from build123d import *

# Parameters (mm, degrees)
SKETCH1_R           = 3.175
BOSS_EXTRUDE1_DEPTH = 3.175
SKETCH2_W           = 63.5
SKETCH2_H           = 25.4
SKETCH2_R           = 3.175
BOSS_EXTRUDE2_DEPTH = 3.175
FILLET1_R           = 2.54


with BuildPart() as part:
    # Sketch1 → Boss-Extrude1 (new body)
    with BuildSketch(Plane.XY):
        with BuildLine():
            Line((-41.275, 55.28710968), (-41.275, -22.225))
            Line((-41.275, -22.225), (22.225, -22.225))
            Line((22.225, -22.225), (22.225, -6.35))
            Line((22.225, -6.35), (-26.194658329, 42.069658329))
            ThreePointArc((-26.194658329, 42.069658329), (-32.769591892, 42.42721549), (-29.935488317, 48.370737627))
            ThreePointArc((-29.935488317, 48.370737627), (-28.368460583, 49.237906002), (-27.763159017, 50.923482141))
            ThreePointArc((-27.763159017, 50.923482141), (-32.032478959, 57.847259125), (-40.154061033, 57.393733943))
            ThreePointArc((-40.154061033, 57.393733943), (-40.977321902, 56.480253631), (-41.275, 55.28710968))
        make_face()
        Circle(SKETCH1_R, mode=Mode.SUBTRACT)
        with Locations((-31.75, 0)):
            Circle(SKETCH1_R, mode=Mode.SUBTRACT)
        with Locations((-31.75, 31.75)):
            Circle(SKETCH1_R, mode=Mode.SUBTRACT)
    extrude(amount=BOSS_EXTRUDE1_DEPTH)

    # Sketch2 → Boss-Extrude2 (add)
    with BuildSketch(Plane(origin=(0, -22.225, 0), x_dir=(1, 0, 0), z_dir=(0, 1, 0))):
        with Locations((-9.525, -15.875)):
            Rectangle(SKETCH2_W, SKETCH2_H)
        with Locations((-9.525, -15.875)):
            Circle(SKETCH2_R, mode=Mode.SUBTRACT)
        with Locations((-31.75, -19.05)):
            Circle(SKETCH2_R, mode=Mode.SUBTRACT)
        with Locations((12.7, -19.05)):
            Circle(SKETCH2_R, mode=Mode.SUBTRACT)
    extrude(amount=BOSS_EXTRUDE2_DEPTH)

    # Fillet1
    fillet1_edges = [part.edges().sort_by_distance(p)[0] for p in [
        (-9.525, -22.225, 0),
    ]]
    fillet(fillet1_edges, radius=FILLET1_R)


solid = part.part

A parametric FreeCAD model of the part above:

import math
import FreeCAD as App
import Part
import Sketcher

V = App.Vector
Q = App.Units.Quantity


def edges_at(feature, points):
    """Names of the edges that pass closest to the given points."""
    edges = feature.Shape.Edges
    near = lambda p: min(range(len(edges)), key=lambda i: edges[i].distToShape(Part.Vertex(*p))[0])
    return sorted({f"Edge{near(p) + 1}" for p in points})


def add_polygon(sketch, points):
    """Adds a closed chain of lines whose ends are joined by coincident constraints."""
    first, n = sketch.GeometryCount, len(points)
    for a, b in zip(points, points[1:] + points[:1]):
        sketch.addGeometry(Part.LineSegment(App.Vector(*a, 0), App.Vector(*b, 0)), False)
    for i in range(n):
        sketch.addConstraint(Sketcher.Constraint("Coincident", first + i, 2, first + (i + 1) % n, 1))

doc = App.newDocument("Part")
body = doc.addObject("PartDesign::Body", "Body")

sketch1 = body.newObject("Sketcher::SketchObject", "Sketch")
sketch1.AttachmentSupport = (doc.getObject("XY_Plane"), [""])
sketch1.MapMode = "FlatFace"
sketch1.addGeometry([
    Part.LineSegment(V(-41.275, 55.28711, 0), V(-41.275, -22.225, 0)),
    Part.LineSegment(V(-41.275, -22.225, 0), V(22.225, -22.225, 0)),
    Part.LineSegment(V(22.225, -22.225, 0), V(22.225, -6.35, 0)),
    Part.LineSegment(V(22.225, -6.35, 0), V(-26.194658, 42.069658, 0)),
    Part.ArcOfCircle(Part.Circle(V(-29.3624, 44.45, 0), V(0, 0, 1), 3.9624), math.radians(98.315948), math.radians(323.077637)),
    Part.ArcOfCircle(Part.Circle(V(-30.302853, 50.884031, 0), V(0, 0, 1), 2.54), math.radians(-81.684052), math.radians(0.889951)),
    Part.ArcOfCircle(Part.Circle(V(-35.7124, 50.8, 0), V(0, 0, 1), 7.9502), math.radians(0.889951), math.radians(123.964936)),
    Part.ArcOfCircle(Part.Circle(V(-38.735, 55.28711, 0), V(0, 0, 1), 2.54), math.radians(123.964936), math.radians(180)),
    Part.Circle(V(-31.75, 0, 0), V(0, 0, 1), 3.175),
    Part.Circle(V(0, 0, 0), V(0, 0, 1), 3.175),
    Part.Circle(V(-31.75, 31.75, 0), V(0, 0, 1), 3.175),
], False)
sketch1.addConstraint([
    Sketcher.Constraint("Coincident", 0, 2, 1, 1),
    Sketcher.Constraint("Coincident", 1, 2, 2, 1),
    Sketcher.Constraint("Coincident", 2, 2, 3, 1),
    Sketcher.Constraint("Coincident", 3, 2, 4, 2),
    Sketcher.Constraint("Tangent", 4, 1, 5, 1),
    Sketcher.Constraint("Tangent", 5, 2, 6, 1),
    Sketcher.Constraint("Tangent", 6, 2, 7, 1),
    Sketcher.Constraint("Tangent", 7, 2, 0, 1),
    Sketcher.Constraint("Vertical", 0),
    Sketcher.Constraint("Horizontal", 1),
    Sketcher.Constraint("Vertical", 2),
    Sketcher.Constraint("Coincident", 9, 3, -1, 1),
    Sketcher.Constraint("Equal", 5, 7),
    Sketcher.Constraint("Equal", 8, 9),
    Sketcher.Constraint("Equal", 9, 10),
    Sketcher.Constraint("PointOnObject", 8, 3, -1),
    Sketcher.Constraint("Vertical", 8, 3, 10, 3),
    Sketcher.Constraint("Radius", 5, Q("0.1 in")),
    Sketcher.Constraint("Diameter", 8, Q("0.25 in")),
    Sketcher.Constraint("DistanceX", 1, 1, 1, 2, Q("2.5 in")),
    Sketcher.Constraint("DistanceY", -1, 1, 6, 3, Q("2 in")),
    Sketcher.Constraint("Angle", 3, Q("135 deg")),
    Sketcher.Constraint("Radius", 4, Q("0.156 in")),
    Sketcher.Constraint("Radius", 6, Q("0.313 in")),
    Sketcher.Constraint("DistanceY", 10, 3, 4, 3, Q("0.5 in")),
    Sketcher.Constraint("DistanceY", 2, 2, 10, 3, Q("1.5 in")),
    Sketcher.Constraint("DistanceY", 2, 1, 2, 2, Q("0.625 in")),
    Sketcher.Constraint("DistanceY", -1, 1, 4, 3, Q("1.75 in")),
    Sketcher.Constraint("DistanceX", 8, 3, -1, 1, Q("1.25 in")),
    Sketcher.Constraint("DistanceX", 6, 3, 4, 3, Q("0.25 in")),
    Sketcher.Constraint("DistanceX", 4, 3, -1, 1, Q("1.156 in")),
    Sketcher.Constraint("DistanceX", 7, 3, -1, 1, Q("1.525 in")),
])
pad1 = body.newObject("PartDesign::Pad", "Pad")
pad1.Profile = sketch1
pad1.Length = Q("0.125 in")

sketch2 = body.newObject("Sketcher::SketchObject", "Sketch001")
sketch2.AttachmentSupport = (doc.getObject("XZ_Plane"), [""])
sketch2.MapMode = "FlatFace"
sketch2.AttachmentOffset = App.Placement(V(0, 0, 0.875 * 25.4), App.Rotation())
add_polygon(sketch2, [(-41.275, 3.175), (-41.275, 28.575), (22.225, 28.575), (22.225, 3.175)])
sketch2.addGeometry(Part.Circle(V(-31.75, 19.05, 0), V(0, 0, 1), 3.175), False)
sketch2.addGeometry(Part.Circle(V(12.7, 19.05, 0), V(0, 0, 1), 3.175), False)
sketch2.addGeometry(Part.Circle(V(-9.525, 15.875, 0), V(0, 0, 1), 3.175), False)
sketch2.addConstraint([
    Sketcher.Constraint("Vertical", 0),
    Sketcher.Constraint("Horizontal", 1),
    Sketcher.Constraint("Vertical", 2),
    Sketcher.Constraint("Horizontal", 3),
    Sketcher.Constraint("Equal", 4, 5),
    Sketcher.Constraint("Equal", 5, 6),
    Sketcher.Constraint("Horizontal", 4, 3, 5, 3),
    Sketcher.Constraint("Diameter", 4, Q("0.25 in")),
    Sketcher.Constraint("DistanceY", 0, 1, 0, 2, Q("1 in")),
    Sketcher.Constraint("DistanceX", 1, 1, 1, 2, Q("2.5 in")),
    Sketcher.Constraint("DistanceX", -1, 1, 5, 3, Q("0.5 in")),
    Sketcher.Constraint("DistanceY", 6, 3, 0, 2, Q("0.5 in")),
    Sketcher.Constraint("DistanceX", 4, 3, -1, 1, Q("1.25 in")),
    Sketcher.Constraint("DistanceY", -1, 1, 4, 3, Q("0.75 in")),
    Sketcher.Constraint("DistanceX", 0, 2, 6, 3, Q("1.25 in")),
    Sketcher.Constraint("DistanceX", 6, 3, -1, 1, Q("0.375 in")),
    Sketcher.Constraint("DistanceY", -1, 1, 6, 3, Q("0.625 in")),
])
pad2 = body.newObject("PartDesign::Pad", "Pad001")
pad2.Profile = sketch2
pad2.Length = Q("0.125 in")
pad2.Reversed = True
doc.recompute()

fillet = body.newObject("PartDesign::Fillet", "Fillet")
fillet.Base = (pad2, edges_at(pad2, [(-9.525, -22.225, 0)]))
fillet.Radius = Q("0.1 in")

doc.recompute()
